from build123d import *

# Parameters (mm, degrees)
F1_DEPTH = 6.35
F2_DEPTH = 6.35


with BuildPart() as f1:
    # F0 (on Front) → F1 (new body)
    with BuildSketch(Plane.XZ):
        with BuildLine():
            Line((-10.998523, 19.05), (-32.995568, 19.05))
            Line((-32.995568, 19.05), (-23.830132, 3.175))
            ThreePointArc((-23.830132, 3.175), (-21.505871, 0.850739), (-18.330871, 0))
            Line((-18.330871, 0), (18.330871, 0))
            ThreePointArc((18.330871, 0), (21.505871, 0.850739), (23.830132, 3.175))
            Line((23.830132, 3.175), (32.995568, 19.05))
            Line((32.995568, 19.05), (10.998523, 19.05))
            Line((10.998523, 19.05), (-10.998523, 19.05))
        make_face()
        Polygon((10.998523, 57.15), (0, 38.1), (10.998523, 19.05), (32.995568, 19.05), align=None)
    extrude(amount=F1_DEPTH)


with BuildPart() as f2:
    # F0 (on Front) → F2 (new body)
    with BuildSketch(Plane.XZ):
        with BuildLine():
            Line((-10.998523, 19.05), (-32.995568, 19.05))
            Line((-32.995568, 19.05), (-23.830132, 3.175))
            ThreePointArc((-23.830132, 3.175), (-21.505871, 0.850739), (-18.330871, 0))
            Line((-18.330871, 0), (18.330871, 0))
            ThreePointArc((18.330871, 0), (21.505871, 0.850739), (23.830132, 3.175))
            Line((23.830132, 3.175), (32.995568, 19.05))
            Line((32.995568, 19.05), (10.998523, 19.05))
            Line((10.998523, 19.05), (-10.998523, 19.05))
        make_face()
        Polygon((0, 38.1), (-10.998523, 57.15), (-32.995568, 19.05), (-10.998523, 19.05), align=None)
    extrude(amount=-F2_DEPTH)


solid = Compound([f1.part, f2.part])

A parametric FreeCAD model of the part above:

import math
import FreeCAD as App
import Part
import Sketcher
from FreeCAD import Vector
Q = App.Units.Quantity

doc = App.newDocument("Part")
params = doc.addObject("Spreadsheet::Sheet", "Params")
for row, (alias, value) in enumerate([
    ("sketch1_radius", "0.25 in"),
    ("pad1_length", "0.25 in"),
    ("sketch2_radius", "0.25 in"),
    ("pad2_length", "0.25 in"),
], start=1):
    params.set(f"A{row}", alias)
    params.set(f"B{row}", "=" + value)
    params.setAlias(f"B{row}", alias)

body = doc.addObject("PartDesign::Body", "Body")

sketch1 = body.newObject("Sketcher::SketchObject", "Sketch")
sketch1.AttachmentSupport = (doc.getObject("XZ_Plane"), [""])
sketch1.MapMode = "FlatFace"
sketch1.addGeometry([
    Part.LineSegment(Vector(-33, 19, 0), Vector(-24, 3, 0)),
    Part.ArcOfCircle(Part.Circle(Vector(-18, 6, 0), Vector(0, 0, 1), 6), math.radians(-150), math.radians(-90)),
    Part.LineSegment(Vector(-18, 0, 0), Vector(18, 0, 0)),
    Part.ArcOfCircle(Part.Circle(Vector(18, 6, 0), Vector(0, 0, 1), 6), math.radians(-90), math.radians(-30)),
    Part.LineSegment(Vector(24, 3, 0), Vector(33, 19, 0)),
    Part.LineSegment(Vector(33, 19, 0), Vector(11, 57, 0)),
    Part.LineSegment(Vector(11, 57, 0), Vector(0, 38, 0)),
    Part.LineSegment(Vector(0, 38, 0), Vector(11, 19, 0)),
    Part.LineSegment(Vector(11, 19, 0), Vector(-33, 19, 0)),
], False)
sketch1.addConstraint([
    Sketcher.Constraint("Tangent", 0, 2, 1, 1),
    Sketcher.Constraint("Tangent", 1, 2, 2, 1),
    Sketcher.Constraint("Tangent", 2, 2, 3, 1),
    Sketcher.Constraint("Tangent", 3, 2, 4, 1),
    Sketcher.Constraint("Coincident", 4, 2, 5, 1),
    Sketcher.Constraint("Coincident", 5, 2, 6, 1),
    Sketcher.Constraint("Coincident", 6, 2, 7, 1),
    Sketcher.Constraint("Coincident", 7, 2, 8, 1),
    Sketcher.Constraint("Coincident", 8, 2, 0, 1),
    Sketcher.Constraint("Horizontal", 2),
    Sketcher.Constraint("Horizontal", 8),
    Sketcher.Constraint("Equal", 1, 3),
    Sketcher.Constraint("Symmetric", 1, 2, 2, 2, -1, 1),
    Sketcher.Constraint("Symmetric", 4, 2, 8, 2, -2),
    Sketcher.Constraint("PointOnObject", 6, 2, -2),
    Sketcher.Constraint("Parallel", 0, 5),
    Sketcher.Constraint("Parallel", 4, 6),
    Sketcher.Constraint("Parallel", 5, 7),
    Sketcher.Constraint("Vertical", 5, 2, 7, 2),
    Sketcher.Constraint("Radius", 1, Q("0.25 in")),
    Sketcher.Constraint("Angle", 0, Q("-59.999999 deg")),
    Sketcher.Constraint("DistanceY", 3, 3, 5, 2, Q("2 in")),
    Sketcher.Constraint("DistanceY", -1, 1, 6, 2, Q("1.5 in")),
])
sketch1.setExpression("Constraints[19]", "Params.sketch1_radius")
pad1 = body.newObject("PartDesign::Pad", "Pad")
pad1.Profile = sketch1
pad1.setExpression("Length", "Params.pad1_length")
body2 = doc.addObject("PartDesign::Body", "Body001")

sketch2 = body2.newObject("Sketcher::SketchObject", "Sketch001")
sketch2.AttachmentSupport = (doc.getObject("XZ_Plane001"), [""])
sketch2.MapMode = "FlatFace"
sketch2.addGeometry([
    Part.LineSegment(Vector(-33, 19, 0), Vector(-24, 3, 0)),
    Part.ArcOfCircle(Part.Circle(Vector(-18, 6, 0), Vector(0, 0, 1), 6), math.radians(-150), math.radians(-90)),
    Part.LineSegment(Vector(-18, 0, 0), Vector(18, 0, 0)),
    Part.ArcOfCircle(Part.Circle(Vector(18, 6, 0), Vector(0, 0, 1), 6), math.radians(-90), math.radians(-30)),
    Part.LineSegment(Vector(24, 3, 0), Vector(33, 19, 0)),
    Part.LineSegment(Vector(33, 19, 0), Vector(-11, 19, 0)),
    Part.LineSegment(Vector(-11, 19, 0), Vector(0, 38, 0)),
    Part.LineSegment(Vector(0, 38, 0), Vector(-11, 57, 0)),
    Part.LineSegment(Vector(-11, 57, 0), Vector(-33, 19, 0)),
], False)
sketch2.addConstraint([
    Sketcher.Constraint("Tangent", 0, 2, 1, 1),
    Sketcher.Constraint("Tangent", 1, 2, 2, 1),
    Sketcher.Constraint("Tangent", 2, 2, 3, 1),
    Sketcher.Constraint("Tangent", 3, 2, 4, 1),
    Sketcher.Constraint("Coincident", 4, 2, 5, 1),
    Sketcher.Constraint("Coincident", 5, 2, 6, 1),
    Sketcher.Constraint("Coincident", 6, 2, 7, 1),
    Sketcher.Constraint("Coincident", 7, 2, 8, 1),
    Sketcher.Constraint("Coincident", 8, 2, 0, 1),
    Sketcher.Constraint("Horizontal", 2),
    Sketcher.Constraint("Horizontal", 5),
    Sketcher.Constraint("Equal", 1, 3),
    Sketcher.Constraint("Symmetric", 1, 2, 2, 2, -1, 1),
    Sketcher.Constraint("Symmetric", 4, 2, 8, 2, -2),
    Sketcher.Constraint("PointOnObject", 6, 2, -2),
    Sketcher.Constraint("Parallel", 4, 6),
    Sketcher.Constraint("Parallel", 0, 7),
    Sketcher.Constraint("Parallel", 6, 8),
    Sketcher.Constraint("Vertical", 5, 2, 7, 2),
    Sketcher.Constraint("Radius", 1, Q("0.25 in")),
    Sketcher.Constraint("Angle", 0, Q("-59.999999 deg")),
    Sketcher.Constraint("DistanceY", 1, 3, 7, 2, Q("2 in")),
    Sketcher.Constraint("DistanceY", -1, 1, 6, 2, Q("1.5 in")),
])
sketch2.setExpression("Constraints[19]", "Params.sketch2_radius")
pad2 = body2.newObject("PartDesign::Pad", "Pad001")
pad2.Profile = sketch2
pad2.setExpression("Length", "Params.pad2_length")
pad2.Reversed = True

doc.recompute()
